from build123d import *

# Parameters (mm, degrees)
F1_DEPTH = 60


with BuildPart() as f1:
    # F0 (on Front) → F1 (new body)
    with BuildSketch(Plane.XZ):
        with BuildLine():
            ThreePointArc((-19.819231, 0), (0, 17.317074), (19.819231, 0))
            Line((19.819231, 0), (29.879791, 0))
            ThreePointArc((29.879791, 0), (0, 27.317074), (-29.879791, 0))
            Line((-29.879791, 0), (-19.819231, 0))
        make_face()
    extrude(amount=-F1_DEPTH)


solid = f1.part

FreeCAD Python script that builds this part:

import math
import FreeCAD as App
import Part
import Sketcher

V = App.Vector
Q = App.Units.Quantity

doc = App.newDocument("Part")
body = doc.addObject("PartDesign::Body", "Body")

# Sketch on XZ plane
sketch1 = body.newObject("Sketcher::SketchObject", "Sketch")
sketch1.AttachmentSupport = (doc.getObject("XZ_Plane"), [""])
sketch1.MapMode = "FlatFace"
sketch1.addGeometry(Part.ArcOfCircle(Part.Circle(V(0, -3, 0), V(0, 0, 1), 20), math.radians(8), math.radians(172)), False)
sketch1.addGeometry(Part.LineSegment(V(20, 0, 0), V(30, 0, 0)), False)
sketch1.addGeometry(Part.ArcOfCircle(Part.Circle(V(0, -3, 0), V(0, 0, 1), 30), math.radians(5), math.radians(175)), False)
sketch1.addGeometry(Part.LineSegment(V(-30, 0, 0), V(-20, 0, 0)), False)
sketch1.addConstraint(Sketcher.Constraint("Coincident", 0, 1, 1, 1))
sketch1.addConstraint(Sketcher.Constraint("Coincident", 1, 2, 2, 1))
sketch1.addConstraint(Sketcher.Constraint("Coincident", 2, 2, 3, 1))
sketch1.addConstraint(Sketcher.Constraint("Coincident", 3, 2, 0, 2))
sketch1.addConstraint(Sketcher.Constraint("Horizontal", 1))
sketch1.addConstraint(Sketcher.Constraint("Horizontal", 3))
sketch1.addConstraint(Sketcher.Constraint("Coincident", 2, 3, 0, 3))
sketch1.addConstraint(Sketcher.Constraint("Symmetric", 1, 2, 2, 2, -1, 1))
sketch1.addConstraint(Sketcher.Constraint("PointOnObject", 0, 3, -2))
sketch1.addConstraint(Sketcher.Constraint("Radius", 0, Q("20 mm")))
sketch1.addConstraint(Sketcher.Constraint("Radius", 2, Q("30 mm")))
sketch1.addConstraint(Sketcher.Constraint("DistanceX", 1, 1, 1, 2, Q("10.06056 mm")))
pad1 = body.newObject("PartDesign::Pad", "Pad")
pad1.Profile = sketch1
pad1.Length = 60
pad1.Reversed = True

doc.recompute()
